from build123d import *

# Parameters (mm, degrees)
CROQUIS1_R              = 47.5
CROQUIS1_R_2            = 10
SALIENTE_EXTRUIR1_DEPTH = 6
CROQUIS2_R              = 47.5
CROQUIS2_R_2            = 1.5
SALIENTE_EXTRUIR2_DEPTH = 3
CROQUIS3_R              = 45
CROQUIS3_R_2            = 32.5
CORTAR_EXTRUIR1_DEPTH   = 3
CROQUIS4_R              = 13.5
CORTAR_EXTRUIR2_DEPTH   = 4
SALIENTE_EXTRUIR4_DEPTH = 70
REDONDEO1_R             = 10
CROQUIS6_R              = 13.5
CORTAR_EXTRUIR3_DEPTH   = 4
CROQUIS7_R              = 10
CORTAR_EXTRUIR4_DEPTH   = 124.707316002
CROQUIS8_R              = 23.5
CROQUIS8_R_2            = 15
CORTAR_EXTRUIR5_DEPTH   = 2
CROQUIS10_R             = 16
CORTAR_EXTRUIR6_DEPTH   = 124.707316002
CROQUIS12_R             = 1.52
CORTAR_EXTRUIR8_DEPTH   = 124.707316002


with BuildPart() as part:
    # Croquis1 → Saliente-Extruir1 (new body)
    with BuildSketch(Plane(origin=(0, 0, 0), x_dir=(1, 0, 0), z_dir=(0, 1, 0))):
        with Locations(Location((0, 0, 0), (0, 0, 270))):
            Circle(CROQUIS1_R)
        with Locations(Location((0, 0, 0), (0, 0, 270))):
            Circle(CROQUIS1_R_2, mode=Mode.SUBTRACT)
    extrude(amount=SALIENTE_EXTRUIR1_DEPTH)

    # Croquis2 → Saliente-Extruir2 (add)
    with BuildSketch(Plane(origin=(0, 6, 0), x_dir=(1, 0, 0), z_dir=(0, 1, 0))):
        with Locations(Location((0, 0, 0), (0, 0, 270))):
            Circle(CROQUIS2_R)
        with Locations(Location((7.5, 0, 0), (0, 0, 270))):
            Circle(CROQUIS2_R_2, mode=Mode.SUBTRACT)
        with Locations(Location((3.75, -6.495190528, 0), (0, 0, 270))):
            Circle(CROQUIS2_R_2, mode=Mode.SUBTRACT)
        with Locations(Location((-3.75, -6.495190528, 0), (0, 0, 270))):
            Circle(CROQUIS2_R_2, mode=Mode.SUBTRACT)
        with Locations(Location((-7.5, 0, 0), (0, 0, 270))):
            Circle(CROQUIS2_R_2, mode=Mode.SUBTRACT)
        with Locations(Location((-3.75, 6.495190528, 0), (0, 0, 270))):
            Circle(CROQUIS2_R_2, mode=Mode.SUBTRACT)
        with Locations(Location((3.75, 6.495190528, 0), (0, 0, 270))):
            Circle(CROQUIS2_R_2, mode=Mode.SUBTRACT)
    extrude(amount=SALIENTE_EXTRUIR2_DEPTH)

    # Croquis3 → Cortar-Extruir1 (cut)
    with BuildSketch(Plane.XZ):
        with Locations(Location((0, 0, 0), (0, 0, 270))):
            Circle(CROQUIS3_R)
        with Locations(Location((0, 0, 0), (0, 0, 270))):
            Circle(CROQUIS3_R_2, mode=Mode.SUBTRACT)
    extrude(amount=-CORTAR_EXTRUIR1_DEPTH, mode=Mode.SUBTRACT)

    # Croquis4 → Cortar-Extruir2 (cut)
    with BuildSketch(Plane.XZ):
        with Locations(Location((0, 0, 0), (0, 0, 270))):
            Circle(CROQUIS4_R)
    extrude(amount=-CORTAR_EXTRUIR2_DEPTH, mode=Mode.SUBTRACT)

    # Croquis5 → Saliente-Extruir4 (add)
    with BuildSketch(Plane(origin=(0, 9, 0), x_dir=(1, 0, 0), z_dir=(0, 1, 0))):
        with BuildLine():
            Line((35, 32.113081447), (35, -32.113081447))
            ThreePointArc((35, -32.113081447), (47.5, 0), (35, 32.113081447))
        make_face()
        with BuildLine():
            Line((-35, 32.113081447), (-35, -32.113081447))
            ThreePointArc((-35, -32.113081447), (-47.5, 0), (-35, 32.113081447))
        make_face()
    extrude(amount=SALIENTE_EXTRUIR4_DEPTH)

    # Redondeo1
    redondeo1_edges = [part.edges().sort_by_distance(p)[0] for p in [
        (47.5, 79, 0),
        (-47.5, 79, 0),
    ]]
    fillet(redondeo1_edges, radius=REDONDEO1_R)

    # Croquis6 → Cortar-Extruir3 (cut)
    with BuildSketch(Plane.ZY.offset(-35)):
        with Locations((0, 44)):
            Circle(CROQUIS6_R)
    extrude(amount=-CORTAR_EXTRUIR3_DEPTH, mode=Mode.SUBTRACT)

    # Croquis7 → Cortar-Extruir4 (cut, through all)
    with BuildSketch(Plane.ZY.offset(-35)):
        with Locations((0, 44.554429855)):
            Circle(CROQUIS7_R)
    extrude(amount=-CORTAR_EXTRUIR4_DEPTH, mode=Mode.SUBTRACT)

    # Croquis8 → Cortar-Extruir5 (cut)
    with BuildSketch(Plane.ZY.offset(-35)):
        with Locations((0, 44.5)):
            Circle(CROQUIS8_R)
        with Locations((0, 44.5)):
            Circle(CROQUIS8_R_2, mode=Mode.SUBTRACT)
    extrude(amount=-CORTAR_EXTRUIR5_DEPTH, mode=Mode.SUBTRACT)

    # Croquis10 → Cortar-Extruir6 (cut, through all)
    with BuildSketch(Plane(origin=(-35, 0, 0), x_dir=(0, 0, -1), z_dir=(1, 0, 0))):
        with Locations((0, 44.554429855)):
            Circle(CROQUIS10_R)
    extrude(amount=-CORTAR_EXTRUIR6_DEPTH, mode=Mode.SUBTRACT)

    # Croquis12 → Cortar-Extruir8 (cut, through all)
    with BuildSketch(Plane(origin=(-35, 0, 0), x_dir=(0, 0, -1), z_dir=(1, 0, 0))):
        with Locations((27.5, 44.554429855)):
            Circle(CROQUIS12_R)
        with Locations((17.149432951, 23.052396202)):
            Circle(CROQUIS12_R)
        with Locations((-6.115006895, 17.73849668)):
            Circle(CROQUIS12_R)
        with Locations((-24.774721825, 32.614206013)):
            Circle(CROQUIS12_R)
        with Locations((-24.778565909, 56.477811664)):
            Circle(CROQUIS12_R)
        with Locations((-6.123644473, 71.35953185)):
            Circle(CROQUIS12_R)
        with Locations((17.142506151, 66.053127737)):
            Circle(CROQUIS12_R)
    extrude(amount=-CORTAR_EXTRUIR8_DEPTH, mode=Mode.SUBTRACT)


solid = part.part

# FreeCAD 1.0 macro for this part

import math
import FreeCAD as App
import Part
import Sketcher


def edges_at(feature, points):
    """Names of the edges that pass closest to the given points."""
    edges = feature.Shape.Edges
    near = lambda p: min(range(len(edges)), key=lambda i: edges[i].distToShape(Part.Vertex(*p))[0])
    return sorted({f"Edge{near(p) + 1}" for p in points})

doc = App.newDocument("Part")
body = doc.addObject("PartDesign::Body", "Body")

# Sketch on XZ plane
sketch1 = body.newObject("Sketcher::SketchObject", "Sketch")
sketch1.AttachmentSupport = (doc.getObject("XZ_Plane"), [""])
sketch1.MapMode = "FlatFace"
sketch1.addGeometry([
    Part.Circle(App.Vector(0, 0, 0), App.Vector(0, 0, 1), 48),
    Part.Circle(App.Vector(0, 0, 0), App.Vector(0, 0, 1), 10),
], False)
sketch1.addConstraint([
    Sketcher.Constraint("Coincident", 0, 3, -1, 1),
    Sketcher.Constraint("Coincident", 1, 3, -1, 1),
    Sketcher.Constraint("Diameter", 0, 95.0),
    Sketcher.Constraint("Diameter", 1, 20.0),
])
pad1 = body.newObject("PartDesign::Pad", "Pad")
pad1.Profile = sketch1
pad1.Length = 6
pad1.Reversed = True

# Sketch on XZ plane
sketch2 = body.newObject("Sketcher::SketchObject", "Sketch001")
sketch2.AttachmentSupport = (doc.getObject("XZ_Plane"), [""])
sketch2.MapMode = "FlatFace"
sketch2.AttachmentOffset = App.Placement(App.Vector(0, 0, -6), App.Rotation())
sketch2.addGeometry([
    Part.Circle(App.Vector(0, 0, 0), App.Vector(0, 0, 1), 47.5),  # 0
    Part.Circle(App.Vector(-3.8, -6.5, 0), App.Vector(0, 0, 1), 1.5),  # 1
    Part.Circle(App.Vector(-7.5, 0, 0), App.Vector(0, 0, 1), 1.5),  # 2
    Part.Circle(App.Vector(-3.8, 6.5, 0), App.Vector(0, 0, 1), 1.5),  # 3
    Part.Circle(App.Vector(3.8, -6.5, 0), App.Vector(0, 0, 1), 1.5),  # 4
    Part.Circle(App.Vector(7.5, 0, 0), App.Vector(0, 0, 1), 1.5),  # 5
    Part.Circle(App.Vector(3.8, 6.5, 0), App.Vector(0, 0, 1), 1.5),  # 6
], False)
sketch2.addConstraint([
    Sketcher.Constraint("Coincident", 0, 3, -1, 1),
    Sketcher.Constraint("Equal", 1, 2),
    Sketcher.Constraint("Equal", 2, 3),
    Sketcher.Constraint("Equal", 3, 4),
    Sketcher.Constraint("Equal", 4, 5),
    Sketcher.Constraint("Equal", 5, 6),
    Sketcher.Constraint("Symmetric", 3, 3, 4, 3, -1, 1),
    Sketcher.Constraint("Symmetric", 2, 3, 5, 3, -1, 1),
    Sketcher.Constraint("Symmetric", 1, 3, 6, 3, -1, 1),
    Sketcher.Constraint("Symmetric", 1, 3, 4, 3, -2),
    Sketcher.Constraint("PointOnObject", 2, 3, -1),
    Sketcher.Constraint("Diameter", 0, 95.0),
    Sketcher.Constraint("Diameter", 1, 3.0),
    Sketcher.Constraint("DistanceX", 2, 3, 5, 3, 15.0),
    Sketcher.Constraint("DistanceX", 1, 3, 4, 3, 7.5),
    Sketcher.Constraint("DistanceY", 1, 3, -1, 1, 6.495191),
])
pad2 = body.newObject("PartDesign::Pad", "Pad001")
pad2.Profile = sketch2
pad2.Length = 3
pad2.Reversed = True

# Sketch on XZ plane
sketch3 = body.newObject("Sketcher::SketchObject", "Sketch002")
sketch3.AttachmentSupport = (doc.getObject("XZ_Plane"), [""])
sketch3.MapMode = "FlatFace"
sketch3.addGeometry([
    Part.Circle(App.Vector(0, 0, 0), App.Vector(0, 0, 1), 45),
    Part.Circle(App.Vector(0, 0, 0), App.Vector(0, 0, 1), 32),
], False)
sketch3.addConstraint([
    Sketcher.Constraint("Coincident", 0, 3, -1, 1),
    Sketcher.Constraint("Coincident", 1, 3, -1, 1),
    Sketcher.Constraint("Diameter", 0, 90.0),
    Sketcher.Constraint("Diameter", 1, 65.0),
])
pocket1 = body.newObject("PartDesign::Pocket", "Pocket")
pocket1.Profile = sketch3
pocket1.Length = 3

# Sketch on XZ plane
sketch4 = body.newObject("Sketcher::SketchObject", "Sketch003")
sketch4.AttachmentSupport = (doc.getObject("XZ_Plane"), [""])
sketch4.MapMode = "FlatFace"
sketch4.addGeometry(Part.Circle(App.Vector(0, 0, 0), App.Vector(0, 0, 1), 14), False)
sketch4.addConstraint([
    Sketcher.Constraint("Coincident", 0, 3, -1, 1),
    Sketcher.Constraint("Diameter", 0, 27.0),
])
pocket2 = body.newObject("PartDesign::Pocket", "Pocket001")
pocket2.Profile = sketch4
pocket2.Length = 4

# Sketch on XZ plane
sketch5 = body.newObject("Sketcher::SketchObject", "Sketch004")
sketch5.AttachmentSupport = (doc.getObject("XZ_Plane"), [""])
sketch5.MapMode = "FlatFace"
sketch5.AttachmentOffset = App.Placement(App.Vector(0, 0, -9), App.Rotation())
sketch5.addGeometry([
    Part.LineSegment(App.Vector(35, -32, 0), App.Vector(35, 32, 0)),
    Part.ArcOfCircle(Part.Circle(App.Vector(0, 0, 0), App.Vector(0, 0, 1), 48), math.radians(-43), math.radians(43)),
    Part.LineSegment(App.Vector(-35, 32, 0), App.Vector(-35, -32, 0)),
    Part.ArcOfCircle(Part.Circle(App.Vector(0, 0, 0), App.Vector(0, 0, 1), 48), math.radians(137), math.radians(223)),
], False)
sketch5.addConstraint([
    Sketcher.Constraint("Coincident", 0, 1, 1, 1),
    Sketcher.Constraint("Coincident", 1, 2, 0, 2),
    Sketcher.Constraint("Coincident", 2, 1, 3, 1),
    Sketcher.Constraint("Coincident", 3, 2, 2, 2),
    Sketcher.Constraint("Vertical", 0),
    Sketcher.Constraint("Vertical", 2),
    Sketcher.Constraint("Coincident", 1, 3, -1, 1),
    Sketcher.Constraint("Coincident", 3, 3, -1, 1),
    Sketcher.Constraint("Equal", 1, 3),
    Sketcher.Constraint("Horizontal", 1, 2, 2, 1),
    Sketcher.Constraint("Radius", 1, 47.5),
    Sketcher.Constraint("DistanceX", -1, 1, 0, 1, 35.0),
])
pad3 = body.newObject("PartDesign::Pad", "Pad002")
pad3.Profile = sketch5
pad3.Length = 70
pad3.Reversed = True
doc.recompute()

fillet = body.newObject("PartDesign::Fillet", "Fillet")
fillet.Base = (pad3, edges_at(pad3, [(47.5, 79, 0), (-47.5, 79, 0)]))
fillet.Radius = 10

# Sketch on YZ plane
sketch6 = body.newObject("Sketcher::SketchObject", "Sketch005")
sketch6.AttachmentSupport = (doc.getObject("YZ_Plane"), [""])
sketch6.MapMode = "FlatFace"
sketch6.AttachmentOffset = App.Placement(App.Vector(0, 0, 35), App.Rotation())
sketch6.addGeometry(Part.Circle(App.Vector(44, 0, 0), App.Vector(0, 0, 1), 14), False)
sketch6.addConstraint([
    Sketcher.Constraint("PointOnObject", 0, 3, -1),
    Sketcher.Constraint("Diameter", 0, 27.0),
    Sketcher.Constraint("DistanceX", -1, 1, 0, 3, 44.0),
])
pocket3 = body.newObject("PartDesign::Pocket", "Pocket002")
pocket3.Profile = sketch6
pocket3.Length = 4
pocket3.Reversed = True

# Sketch on YZ plane
sketch7 = body.newObject("Sketcher::SketchObject", "Sketch006")
sketch7.AttachmentSupport = (doc.getObject("YZ_Plane"), [""])
sketch7.MapMode = "FlatFace"
sketch7.AttachmentOffset = App.Placement(App.Vector(0, 0, 35), App.Rotation())
sketch7.addGeometry(Part.Circle(App.Vector(45, 0, 0), App.Vector(0, 0, 1), 10), False)
sketch7.addConstraint([
    Sketcher.Constraint("PointOnObject", 0, 3, -1),
    Sketcher.Constraint("Diameter", 0, 20.0),
    Sketcher.Constraint("DistanceX", -1, 1, 0, 3, 44.55443),
])
pocket4 = body.newObject("PartDesign::Pocket", "Pocket003")
pocket4.Profile = sketch7
pocket4.Type = "ThroughAll"
pocket4.Reversed = True

# Sketch on YZ plane
sketch8 = body.newObject("Sketcher::SketchObject", "Sketch007")
sketch8.AttachmentSupport = (doc.getObject("YZ_Plane"), [""])
sketch8.MapMode = "FlatFace"
sketch8.AttachmentOffset = App.Placement(App.Vector(0, 0, 35), App.Rotation())
sketch8.addGeometry([
    Part.Circle(App.Vector(44, 0, 0), App.Vector(0, 0, 1), 24),
    Part.Circle(App.Vector(44, 0, 0), App.Vector(0, 0, 1), 15),
], False)
sketch8.addConstraint([
    Sketcher.Constraint("Coincident", 1, 3, 0, 3),
    Sketcher.Constraint("PointOnObject", 0, 3, -1),
    Sketcher.Constraint("Diameter", 0, 47.0),
    Sketcher.Constraint("Diameter", 1, 30.0),
    Sketcher.Constraint("DistanceX", -1, 1, 0, 3, 44.5),
])
pocket5 = body.newObject("PartDesign::Pocket", "Pocket004")
pocket5.Profile = sketch8
pocket5.Length = 2
pocket5.Reversed = True

# Sketch on YZ plane
sketch9 = body.newObject("Sketcher::SketchObject", "Sketch008")
sketch9.AttachmentSupport = (doc.getObject("YZ_Plane"), [""])
sketch9.MapMode = "FlatFace"
sketch9.AttachmentOffset = App.Placement(App.Vector(0, 0, -35), App.Rotation())
sketch9.addGeometry(Part.Circle(App.Vector(45, 0, 0), App.Vector(0, 0, 1), 16), False)
sketch9.addConstraint([
    Sketcher.Constraint("PointOnObject", 0, 3, -1),
    Sketcher.Constraint("Diameter", 0, 32.0),
    Sketcher.Constraint("DistanceX", -1, 1, 0, 3, 44.55443),
])
pocket6 = body.newObject("PartDesign::Pocket", "Pocket005")
pocket6.Profile = sketch9
pocket6.Type = "ThroughAll"

# Sketch on YZ plane
sketch10 = body.newObject("Sketcher::SketchObject", "Sketch009")
sketch10.AttachmentSupport = (doc.getObject("YZ_Plane"), [""])
sketch10.MapMode = "FlatFace"
sketch10.AttachmentOffset = App.Placement(App.Vector(0, 0, -35), App.Rotation())
sketch10.addGeometry([
    Part.Circle(App.Vector(44.6, -27.5, 0), App.Vector(0, 0, 1), 1.5),  # 0
    Part.Circle(App.Vector(23.1, -17.1, 0), App.Vector(0, 0, 1), 1.5),  # 1
    Part.Circle(App.Vector(17.7, 6.1, 0), App.Vector(0, 0, 1), 1.5),  # 2
    Part.Circle(App.Vector(32.6, 24.8, 0), App.Vector(0, 0, 1), 1.5),  # 3
    Part.Circle(App.Vector(56.5, 24.8, 0), App.Vector(0, 0, 1), 1.5),  # 4
    Part.Circle(App.Vector(71.4, 6.1, 0), App.Vector(0, 0, 1), 1.5),  # 5
    Part.Circle(App.Vector(66.1, -17.1, 0), App.Vector(0, 0, 1), 1.5),  # 6
], False)
sketch10.addConstraint([
    Sketcher.Constraint("Equal", 0, 1),
    Sketcher.Constraint("Equal", 1, 2),
    Sketcher.Constraint("Equal", 2, 3),
    Sketcher.Constraint("Equal", 3, 4),
    Sketcher.Constraint("Equal", 4, 5),
    Sketcher.Constraint("Equal", 5, 6),
    Sketcher.Constraint("Diameter", 0, 3.04),
    Sketcher.Constraint("DistanceY", 0, 3, -1, 1, 27.5),
    Sketcher.Constraint("DistanceY", 1, 3, 4, 3, 41.927999),
    Sketcher.Constraint("DistanceX", 2, 3, 1, 3, 5.3139),
    Sketcher.Constraint("DistanceX", 0, 3, 5, 3, 26.805102),
    Sketcher.Constraint("DistanceX", -1, 1, 0, 3, 44.55443),
    Sketcher.Constraint("DistanceY", -1, 1, 3, 3, 24.774722),
    Sketcher.Constraint("DistanceX", -1, 1, 4, 3, 56.477812),
    Sketcher.Constraint("DistanceY", 1, 3, 2, 3, 23.26444),
    Sketcher.Constraint("DistanceX", 2, 3, 3, 3, 14.875709),
    Sketcher.Constraint("DistanceY", 5, 3, 4, 3, 18.654921),
    Sketcher.Constraint("DistanceY", 6, 3, 5, 3, 23.266151),
    Sketcher.Constraint("DistanceX", 1, 3, 6, 3, 43.000732),
    Sketcher.Constraint("DistanceX", -1, 1, 1, 3, 23.052396),
    Sketcher.Constraint("DistanceY", 1, 3, -1, 1, 17.149433),
])
pocket7 = body.newObject("PartDesign::Pocket", "Pocket006")
pocket7.Profile = sketch10
pocket7.Type = "ThroughAll"

doc.recompute()
